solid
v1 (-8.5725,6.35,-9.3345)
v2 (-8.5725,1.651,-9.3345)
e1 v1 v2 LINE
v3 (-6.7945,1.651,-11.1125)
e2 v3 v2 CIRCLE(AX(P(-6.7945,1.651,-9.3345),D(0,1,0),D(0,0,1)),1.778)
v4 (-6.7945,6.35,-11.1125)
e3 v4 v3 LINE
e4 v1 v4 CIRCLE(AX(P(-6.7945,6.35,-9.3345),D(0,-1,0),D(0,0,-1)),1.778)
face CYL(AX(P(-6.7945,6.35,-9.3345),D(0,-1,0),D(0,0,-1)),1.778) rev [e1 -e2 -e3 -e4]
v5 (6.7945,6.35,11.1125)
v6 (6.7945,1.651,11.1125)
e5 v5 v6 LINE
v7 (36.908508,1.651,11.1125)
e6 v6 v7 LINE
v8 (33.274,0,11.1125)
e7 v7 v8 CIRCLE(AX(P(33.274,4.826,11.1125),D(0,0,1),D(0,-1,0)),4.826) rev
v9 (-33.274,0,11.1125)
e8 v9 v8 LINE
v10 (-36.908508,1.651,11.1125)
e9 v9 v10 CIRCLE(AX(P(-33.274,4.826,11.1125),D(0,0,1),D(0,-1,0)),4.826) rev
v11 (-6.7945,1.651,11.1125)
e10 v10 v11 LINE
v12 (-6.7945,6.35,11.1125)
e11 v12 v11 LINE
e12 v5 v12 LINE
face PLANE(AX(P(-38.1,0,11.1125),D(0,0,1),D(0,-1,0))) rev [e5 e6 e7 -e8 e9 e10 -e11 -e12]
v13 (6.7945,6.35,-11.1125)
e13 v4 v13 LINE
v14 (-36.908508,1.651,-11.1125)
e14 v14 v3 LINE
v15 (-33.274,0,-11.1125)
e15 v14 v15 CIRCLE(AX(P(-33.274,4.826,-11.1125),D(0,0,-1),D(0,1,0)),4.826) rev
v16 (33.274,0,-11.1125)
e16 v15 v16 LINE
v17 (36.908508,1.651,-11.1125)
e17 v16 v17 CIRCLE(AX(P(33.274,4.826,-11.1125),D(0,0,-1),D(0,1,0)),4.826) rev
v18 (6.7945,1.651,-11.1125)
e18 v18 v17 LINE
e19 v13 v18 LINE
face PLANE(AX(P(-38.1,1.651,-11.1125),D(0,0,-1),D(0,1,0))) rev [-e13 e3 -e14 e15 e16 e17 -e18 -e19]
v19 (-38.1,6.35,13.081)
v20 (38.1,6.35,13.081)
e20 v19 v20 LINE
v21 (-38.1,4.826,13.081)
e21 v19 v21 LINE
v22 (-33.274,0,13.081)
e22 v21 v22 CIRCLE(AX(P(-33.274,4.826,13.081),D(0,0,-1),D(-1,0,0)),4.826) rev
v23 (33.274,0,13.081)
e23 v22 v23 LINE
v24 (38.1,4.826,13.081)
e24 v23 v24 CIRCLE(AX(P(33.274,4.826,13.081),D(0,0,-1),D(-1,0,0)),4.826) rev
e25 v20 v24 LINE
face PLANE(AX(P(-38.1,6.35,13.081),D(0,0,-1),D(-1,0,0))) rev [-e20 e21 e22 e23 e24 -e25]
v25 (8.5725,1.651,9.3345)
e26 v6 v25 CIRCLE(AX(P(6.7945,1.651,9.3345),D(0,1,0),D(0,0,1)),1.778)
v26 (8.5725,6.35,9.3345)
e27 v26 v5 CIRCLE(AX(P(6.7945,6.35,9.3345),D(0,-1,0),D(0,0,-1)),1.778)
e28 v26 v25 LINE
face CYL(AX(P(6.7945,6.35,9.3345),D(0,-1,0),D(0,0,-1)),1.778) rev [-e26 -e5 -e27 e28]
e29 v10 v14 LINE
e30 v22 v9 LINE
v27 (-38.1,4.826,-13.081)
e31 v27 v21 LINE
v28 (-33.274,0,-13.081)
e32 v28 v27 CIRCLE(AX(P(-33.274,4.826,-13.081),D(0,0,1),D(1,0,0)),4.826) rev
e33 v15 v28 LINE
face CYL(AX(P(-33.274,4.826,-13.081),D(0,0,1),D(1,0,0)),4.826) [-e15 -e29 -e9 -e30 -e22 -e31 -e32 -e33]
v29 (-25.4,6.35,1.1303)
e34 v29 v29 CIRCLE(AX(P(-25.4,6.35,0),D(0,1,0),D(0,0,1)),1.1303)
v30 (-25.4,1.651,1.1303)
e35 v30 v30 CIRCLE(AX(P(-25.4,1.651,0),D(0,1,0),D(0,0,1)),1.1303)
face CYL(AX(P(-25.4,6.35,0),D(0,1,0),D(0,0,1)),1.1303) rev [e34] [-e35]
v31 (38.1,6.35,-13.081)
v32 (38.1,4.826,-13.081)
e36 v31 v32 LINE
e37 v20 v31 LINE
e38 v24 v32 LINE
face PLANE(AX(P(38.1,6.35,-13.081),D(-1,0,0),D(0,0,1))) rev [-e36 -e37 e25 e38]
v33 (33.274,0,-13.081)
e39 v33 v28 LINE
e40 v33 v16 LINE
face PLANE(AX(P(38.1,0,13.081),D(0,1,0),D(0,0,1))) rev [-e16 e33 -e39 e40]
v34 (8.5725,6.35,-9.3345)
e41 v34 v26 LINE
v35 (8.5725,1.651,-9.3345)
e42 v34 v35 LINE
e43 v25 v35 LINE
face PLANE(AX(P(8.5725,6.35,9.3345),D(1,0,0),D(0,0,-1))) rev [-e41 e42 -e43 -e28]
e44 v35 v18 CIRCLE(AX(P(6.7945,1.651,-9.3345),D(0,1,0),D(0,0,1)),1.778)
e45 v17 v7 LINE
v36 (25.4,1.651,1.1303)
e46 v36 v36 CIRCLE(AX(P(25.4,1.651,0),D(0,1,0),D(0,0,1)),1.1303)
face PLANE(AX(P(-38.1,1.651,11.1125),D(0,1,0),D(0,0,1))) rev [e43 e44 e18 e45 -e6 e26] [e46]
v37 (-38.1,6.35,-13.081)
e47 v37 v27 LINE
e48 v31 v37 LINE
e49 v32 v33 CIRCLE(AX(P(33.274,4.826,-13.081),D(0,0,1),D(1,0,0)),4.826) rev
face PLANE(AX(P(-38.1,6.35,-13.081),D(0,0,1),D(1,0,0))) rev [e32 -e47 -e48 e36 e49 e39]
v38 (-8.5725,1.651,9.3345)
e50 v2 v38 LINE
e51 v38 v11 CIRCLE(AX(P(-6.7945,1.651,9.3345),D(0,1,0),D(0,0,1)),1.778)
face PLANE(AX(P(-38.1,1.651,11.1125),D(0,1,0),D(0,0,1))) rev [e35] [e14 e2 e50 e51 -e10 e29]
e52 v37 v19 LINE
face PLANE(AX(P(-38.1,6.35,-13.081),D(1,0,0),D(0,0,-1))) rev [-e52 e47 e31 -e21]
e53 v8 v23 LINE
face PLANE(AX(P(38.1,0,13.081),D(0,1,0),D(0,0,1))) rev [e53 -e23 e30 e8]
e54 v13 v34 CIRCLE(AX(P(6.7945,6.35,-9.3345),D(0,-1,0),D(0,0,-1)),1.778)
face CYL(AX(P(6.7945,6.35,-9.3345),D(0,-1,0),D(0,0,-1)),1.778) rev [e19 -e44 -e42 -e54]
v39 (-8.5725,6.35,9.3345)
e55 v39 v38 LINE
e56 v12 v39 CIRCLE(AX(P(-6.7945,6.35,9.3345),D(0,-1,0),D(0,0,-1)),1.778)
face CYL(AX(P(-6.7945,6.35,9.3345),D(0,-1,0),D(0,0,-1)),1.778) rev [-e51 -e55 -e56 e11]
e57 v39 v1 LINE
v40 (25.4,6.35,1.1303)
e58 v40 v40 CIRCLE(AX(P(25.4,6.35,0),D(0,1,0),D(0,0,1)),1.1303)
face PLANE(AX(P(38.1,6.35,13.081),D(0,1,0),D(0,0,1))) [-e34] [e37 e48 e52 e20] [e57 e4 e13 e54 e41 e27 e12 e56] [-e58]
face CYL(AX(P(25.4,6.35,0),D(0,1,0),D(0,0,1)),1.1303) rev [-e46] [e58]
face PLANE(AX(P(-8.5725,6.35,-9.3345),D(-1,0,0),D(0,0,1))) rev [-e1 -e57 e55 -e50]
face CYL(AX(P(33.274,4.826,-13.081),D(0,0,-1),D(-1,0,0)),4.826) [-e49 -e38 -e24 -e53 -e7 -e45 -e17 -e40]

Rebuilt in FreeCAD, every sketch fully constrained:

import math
import FreeCAD as App
import Part
import Sketcher
Q = App.Units.Quantity


def edges_at(feature, points):
    """Names of the edges that pass closest to the given points."""
    edges = feature.Shape.Edges
    near = lambda p: min(range(len(edges)), key=lambda i: edges[i].distToShape(Part.Vertex(*p))[0])
    return sorted({f"Edge{near(p) + 1}" for p in points})


def add_polygon(sketch, points):
    """Adds a closed chain of lines whose ends are joined by coincident constraints."""
    first, n = sketch.GeometryCount, len(points)
    for a, b in zip(points, points[1:] + points[:1]):
        sketch.addGeometry(Part.LineSegment(App.Vector(*a, 0), App.Vector(*b, 0)), False)
    for i in range(n):
        sketch.addConstraint(Sketcher.Constraint("Coincident", first + i, 2, first + (i + 1) % n, 1))

doc = App.newDocument("Part")
body = doc.addObject("PartDesign::Body", "Body")

sketch1 = doc.addObject("Sketcher::SketchObject", "Sketch")
body.addObject(sketch1)
sketch1.AttachmentSupport = (doc.XZ_Plane, [""])
sketch1.MapMode = "FlatFace"
add_polygon(sketch1, [(-38, -13), (-38, 13), (38, 13), (38, -13)])
sketch1.addConstraint([
    Sketcher.Constraint("Vertical", 0),
    Sketcher.Constraint("Horizontal", 1),
    Sketcher.Constraint("Vertical", 2),
    Sketcher.Constraint("Horizontal", 3),
    Sketcher.Constraint("Symmetric", 0, 2, 2, 2, -1, 1),
    Sketcher.Constraint("DistanceX", 1, 1, 1, 2, Q("3 in")),
    Sketcher.Constraint("DistanceY", 0, 1, 0, 2, Q("1.03 in")),
])
pad1 = doc.addObject("PartDesign::Pad", "Pad")
body.addObject(pad1)
pad1.Profile = sketch1
pad1.Length = Q("0.25 in")
pad1.Reversed = True
doc.recompute()

fillet = doc.addObject("PartDesign::Fillet", "Fillet")
body.addObject(fillet)
fillet.Base = (pad1, edges_at(pad1, [(-38.1, 0, 0), (38.1, 0, 0)]))
fillet.Radius = Q("0.19 in")

sketch2 = doc.addObject("Sketcher::SketchObject", "Sketch001")
body.addObject(sketch2)
sketch2.AttachmentSupport = (doc.YZ_Plane, [""])
sketch2.MapMode = "FlatFace"
sketch2.AttachmentOffset = App.Placement(App.Vector(0, 0, 1.5 * 25.4), App.Rotation())
add_polygon(sketch2, [(1.7, 11.1), (0, 11.1), (0, -11.1), (1.7, -11.1)])
sketch2.addConstraint([
    Sketcher.Constraint("Horizontal", 0),
    Sketcher.Constraint("Vertical", 1),
    Sketcher.Constraint("Horizontal", 2),
    Sketcher.Constraint("Vertical", 3),
    Sketcher.Constraint("Symmetric", 0, 2, 1, 2, -1, 1),
    Sketcher.Constraint("DistanceX", 0, 2, 0, 1, Q("0.065 in")),
    Sketcher.Constraint("DistanceY", 1, 2, 1, 1, Q("0.875 in")),
])
pocket1 = doc.addObject("PartDesign::Pocket", "Pocket")
body.addObject(pocket1)
pocket1.Profile = sketch2
pocket1.Type = "ThroughAll"

sketch3 = doc.addObject("Sketcher::SketchObject", "Sketch002")
body.addObject(sketch3)
sketch3.AttachmentSupport = (doc.XZ_Plane, [""])
sketch3.MapMode = "FlatFace"
sketch3.AttachmentOffset = App.Placement(App.Vector(0, 0, -0.065 * 25.4), App.Rotation())
sketch3.addGeometry([
    Part.LineSegment(App.Vector(-6.8, -11.1, 0), App.Vector(6.8, -11.1, 0)),
    Part.ArcOfCircle(Part.Circle(App.Vector(6.8, -9.3, 0), App.Vector(0, 0, 1), 1.8), math.radians(-90), math.radians(0)),
    Part.LineSegment(App.Vector(8.6, -9.3, 0), App.Vector(8.6, 9.3, 0)),
    Part.ArcOfCircle(Part.Circle(App.Vector(6.8, 9.3, 0), App.Vector(0, 0, 1), 1.8), math.radians(0), math.radians(90)),
    Part.LineSegment(App.Vector(6.8, 11.1, 0), App.Vector(-6.8, 11.1, 0)),
    Part.ArcOfCircle(Part.Circle(App.Vector(-6.8, 9.3, 0), App.Vector(0, 0, 1), 1.8), math.radians(90), math.radians(180)),
    Part.LineSegment(App.Vector(-8.6, 9.3, 0), App.Vector(-8.6, -9.3, 0)),
    Part.ArcOfCircle(Part.Circle(App.Vector(-6.8, -9.3, 0), App.Vector(0, 0, 1), 1.8), math.radians(180), math.radians(270)),
], False)
sketch3.addConstraint([
    Sketcher.Constraint("Tangent", 0, 2, 1, 1),
    Sketcher.Constraint("Tangent", 1, 2, 2, 1),
    Sketcher.Constraint("Tangent", 2, 2, 3, 1),
    Sketcher.Constraint("Tangent", 3, 2, 4, 1),
    Sketcher.Constraint("Tangent", 4, 2, 5, 1),
    Sketcher.Constraint("Tangent", 5, 2, 6, 1),
    Sketcher.Constraint("Tangent", 6, 2, 7, 1),
    Sketcher.Constraint("Tangent", 7, 2, 0, 1),
    Sketcher.Constraint("Horizontal", 0),
    Sketcher.Constraint("Vertical", 2),
    Sketcher.Constraint("Horizontal", 4),
    Sketcher.Constraint("Vertical", 6),
    Sketcher.Constraint("Equal", 1, 3),
    Sketcher.Constraint("Equal", 3, 5),
    Sketcher.Constraint("Equal", 5, 7),
    Sketcher.Constraint("Symmetric", 1, 3, 5, 3, -1, 1),
    Sketcher.Constraint("Radius", 1, Q("0.07 in")),
    Sketcher.Constraint("DistanceX", 0, 1, 0, 2, Q("0.535 in")),
    Sketcher.Constraint("DistanceY", 2, 1, 2, 2, Q("0.735 in")),
])
pocket2 = doc.addObject("PartDesign::Pocket", "Pocket001")
body.addObject(pocket2)
pocket2.Profile = sketch3
pocket2.Type = "ThroughAll"
pocket2.Midplane = True

sketch4 = doc.addObject("Sketcher::SketchObject", "Sketch003")
body.addObject(sketch4)
sketch4.AttachmentSupport = (doc.XZ_Plane, [""])
sketch4.MapMode = "FlatFace"
sketch4.AttachmentOffset = App.Placement(App.Vector(0, 0, -0.25 * 25.4), App.Rotation())
sketch4.addGeometry([
    Part.Circle(App.Vector(-25.4, 0, 0), App.Vector(0, 0, 1), 1.1),
    Part.Circle(App.Vector(25.4, 0, 0), App.Vector(0, 0, 1), 1.1),
], False)
sketch4.addConstraint([
    Sketcher.Constraint("Equal", 0, 1),
    Sketcher.Constraint("Symmetric", 0, 3, 1, 3, -1, 1),
    Sketcher.Constraint("PointOnObject", 0, 3, -1),
    Sketcher.Constraint("Diameter", 0, Q("0.089 in")),
    Sketcher.Constraint("DistanceX", 0, 3, -1, 1, Q("1 in")),
])
doc.recompute()
hole = doc.addObject("PartDesign::Hole", "Hole")
body.addObject(hole)
hole.Profile = sketch4
hole.ThreadType = "None"
hole.Diameter = Q("0.089 in")
hole.DepthType = "ThroughAll"
hole.Reversed = True

doc.recompute()
